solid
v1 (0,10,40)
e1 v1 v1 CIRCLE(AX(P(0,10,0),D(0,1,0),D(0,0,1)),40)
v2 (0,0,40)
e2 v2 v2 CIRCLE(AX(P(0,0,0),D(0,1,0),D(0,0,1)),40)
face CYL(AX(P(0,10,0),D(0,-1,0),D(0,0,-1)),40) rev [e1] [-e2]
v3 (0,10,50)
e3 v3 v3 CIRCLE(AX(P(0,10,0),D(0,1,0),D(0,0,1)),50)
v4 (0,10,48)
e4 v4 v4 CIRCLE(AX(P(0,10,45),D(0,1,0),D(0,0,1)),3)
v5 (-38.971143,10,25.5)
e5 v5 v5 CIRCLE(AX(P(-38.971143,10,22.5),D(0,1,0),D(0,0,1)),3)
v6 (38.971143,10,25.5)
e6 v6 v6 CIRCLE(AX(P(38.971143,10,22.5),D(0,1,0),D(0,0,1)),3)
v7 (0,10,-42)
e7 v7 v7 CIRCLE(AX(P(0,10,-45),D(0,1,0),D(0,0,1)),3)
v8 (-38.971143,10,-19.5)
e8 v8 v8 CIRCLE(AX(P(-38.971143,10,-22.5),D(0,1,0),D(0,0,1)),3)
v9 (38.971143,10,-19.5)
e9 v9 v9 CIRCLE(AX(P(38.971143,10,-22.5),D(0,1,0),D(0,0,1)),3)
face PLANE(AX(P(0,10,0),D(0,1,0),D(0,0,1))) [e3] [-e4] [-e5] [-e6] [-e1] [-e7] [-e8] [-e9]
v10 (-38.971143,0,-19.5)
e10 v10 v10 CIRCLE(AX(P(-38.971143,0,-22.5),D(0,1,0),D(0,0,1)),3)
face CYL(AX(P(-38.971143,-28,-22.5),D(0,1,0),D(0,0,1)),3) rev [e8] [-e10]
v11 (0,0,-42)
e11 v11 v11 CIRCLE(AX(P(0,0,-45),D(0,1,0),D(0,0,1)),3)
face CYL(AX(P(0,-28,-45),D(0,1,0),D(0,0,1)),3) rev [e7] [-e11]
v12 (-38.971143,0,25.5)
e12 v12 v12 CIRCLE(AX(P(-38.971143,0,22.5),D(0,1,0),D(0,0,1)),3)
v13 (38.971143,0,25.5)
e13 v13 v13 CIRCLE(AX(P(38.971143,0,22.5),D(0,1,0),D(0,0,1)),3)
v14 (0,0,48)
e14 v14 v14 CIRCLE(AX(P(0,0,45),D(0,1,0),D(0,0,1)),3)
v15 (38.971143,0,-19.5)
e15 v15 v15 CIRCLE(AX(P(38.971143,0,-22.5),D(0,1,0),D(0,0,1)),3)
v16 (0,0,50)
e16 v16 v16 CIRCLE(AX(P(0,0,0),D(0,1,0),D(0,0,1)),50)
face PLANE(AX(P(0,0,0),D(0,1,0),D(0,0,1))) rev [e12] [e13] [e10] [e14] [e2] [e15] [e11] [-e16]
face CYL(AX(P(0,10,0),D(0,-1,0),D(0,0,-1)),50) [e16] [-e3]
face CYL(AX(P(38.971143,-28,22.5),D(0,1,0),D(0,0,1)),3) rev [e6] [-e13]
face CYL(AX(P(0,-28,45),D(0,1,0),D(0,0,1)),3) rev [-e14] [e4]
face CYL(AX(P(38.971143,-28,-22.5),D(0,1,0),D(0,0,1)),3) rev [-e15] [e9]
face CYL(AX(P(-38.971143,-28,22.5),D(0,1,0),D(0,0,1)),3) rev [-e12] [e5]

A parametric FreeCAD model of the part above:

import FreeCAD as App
import Part
import Sketcher
from FreeCAD import Vector
Q = App.Units.Quantity

doc = App.newDocument("Part")
params = doc.addObject("Spreadsheet::Sheet", "Params")
for row, (alias, value) in enumerate([
    ("sketch1_diameter", "100 mm"),
    ("sketch1_diameter2", "80 mm"),
    ("pad1_length", "10 mm"),
    ("sketch2_diameter", "6 mm"),
    ("pocket1_length", "38 mm"),
], start=1):
    params.set(f"A{row}", alias)
    params.set(f"B{row}", "=" + value)
    params.setAlias(f"B{row}", alias)

body = doc.addObject("PartDesign::Body", "Body")

# Sketch on XZ plane
sketch1 = body.newObject("Sketcher::SketchObject", "Sketch")
sketch1.AttachmentSupport = (doc.getObject("XZ_Plane"), [""])
sketch1.MapMode = "FlatFace"
sketch1.addGeometry([
    Part.Circle(Vector(0, 0, 0), Vector(0, 0, 1), 50),
    Part.Circle(Vector(0, 0, 0), Vector(0, 0, 1), 40),
], False)
sketch1.addConstraint([
    Sketcher.Constraint("Coincident", 0, 3, -1, 1),
    Sketcher.Constraint("Coincident", 1, 3, -1, 1),
    Sketcher.Constraint("Diameter", 0, Q("100 mm")),
    Sketcher.Constraint("Diameter", 1, Q("80 mm")),
])
sketch1.setExpression("Constraints[2]", "Params.sketch1_diameter")
sketch1.setExpression("Constraints[3]", "Params.sketch1_diameter2")
pad1 = body.newObject("PartDesign::Pad", "Pad")
pad1.Profile = sketch1
pad1.setExpression("Length", "Params.pad1_length")
pad1.Reversed = True

# Sketch on XZ plane
sketch2 = body.newObject("Sketcher::SketchObject", "Sketch001")
sketch2.AttachmentSupport = (doc.getObject("XZ_Plane"), [""])
sketch2.MapMode = "FlatFace"
sketch2.AttachmentOffset = App.Placement(Vector(0, 0, -10), App.Rotation())
sketch2.addGeometry([
    Part.Circle(Vector(0, -45, 0), Vector(0, 0, 1), 3),  # 0
    Part.Circle(Vector(39, -22.5, 0), Vector(0, 0, 1), 3),  # 1
    Part.Circle(Vector(39, 22.5, 0), Vector(0, 0, 1), 3),  # 2
    Part.Circle(Vector(0, 45, 0), Vector(0, 0, 1), 3),  # 3
    Part.Circle(Vector(-39, 22.5, 0), Vector(0, 0, 1), 3),  # 4
    Part.Circle(Vector(-39, -22.5, 0), Vector(0, 0, 1), 3),  # 5
], False)
sketch2.addConstraint([
    Sketcher.Constraint("Equal", 0, 1),
    Sketcher.Constraint("Equal", 1, 2),
    Sketcher.Constraint("Equal", 2, 3),
    Sketcher.Constraint("Equal", 3, 4),
    Sketcher.Constraint("Equal", 4, 5),
    Sketcher.Constraint("Symmetric", 0, 3, 3, 3, -1, 1),
    Sketcher.Constraint("Symmetric", 1, 3, 4, 3, -1, 1),
    Sketcher.Constraint("Symmetric", 2, 3, 5, 3, -1, 1),
    Sketcher.Constraint("Symmetric", 2, 3, 4, 3, -2),
    Sketcher.Constraint("PointOnObject", 0, 3, -2),
    Sketcher.Constraint("Diameter", 0, Q("6 mm")),
    Sketcher.Constraint("DistanceY", 0, 3, -1, 1, Q("45 mm")),
    Sketcher.Constraint("DistanceY", 1, 3, 2, 3, Q("45 mm")),
    Sketcher.Constraint("DistanceX", -1, 1, 1, 3, Q("38.971143 mm")),
])
sketch2.setExpression("Constraints[10]", "Params.sketch2_diameter")
pocket1 = body.newObject("PartDesign::Pocket", "Pocket")
pocket1.Profile = sketch2
pocket1.setExpression("Length", "Params.pocket1_length")
pocket1.Reversed = True

doc.recompute()
